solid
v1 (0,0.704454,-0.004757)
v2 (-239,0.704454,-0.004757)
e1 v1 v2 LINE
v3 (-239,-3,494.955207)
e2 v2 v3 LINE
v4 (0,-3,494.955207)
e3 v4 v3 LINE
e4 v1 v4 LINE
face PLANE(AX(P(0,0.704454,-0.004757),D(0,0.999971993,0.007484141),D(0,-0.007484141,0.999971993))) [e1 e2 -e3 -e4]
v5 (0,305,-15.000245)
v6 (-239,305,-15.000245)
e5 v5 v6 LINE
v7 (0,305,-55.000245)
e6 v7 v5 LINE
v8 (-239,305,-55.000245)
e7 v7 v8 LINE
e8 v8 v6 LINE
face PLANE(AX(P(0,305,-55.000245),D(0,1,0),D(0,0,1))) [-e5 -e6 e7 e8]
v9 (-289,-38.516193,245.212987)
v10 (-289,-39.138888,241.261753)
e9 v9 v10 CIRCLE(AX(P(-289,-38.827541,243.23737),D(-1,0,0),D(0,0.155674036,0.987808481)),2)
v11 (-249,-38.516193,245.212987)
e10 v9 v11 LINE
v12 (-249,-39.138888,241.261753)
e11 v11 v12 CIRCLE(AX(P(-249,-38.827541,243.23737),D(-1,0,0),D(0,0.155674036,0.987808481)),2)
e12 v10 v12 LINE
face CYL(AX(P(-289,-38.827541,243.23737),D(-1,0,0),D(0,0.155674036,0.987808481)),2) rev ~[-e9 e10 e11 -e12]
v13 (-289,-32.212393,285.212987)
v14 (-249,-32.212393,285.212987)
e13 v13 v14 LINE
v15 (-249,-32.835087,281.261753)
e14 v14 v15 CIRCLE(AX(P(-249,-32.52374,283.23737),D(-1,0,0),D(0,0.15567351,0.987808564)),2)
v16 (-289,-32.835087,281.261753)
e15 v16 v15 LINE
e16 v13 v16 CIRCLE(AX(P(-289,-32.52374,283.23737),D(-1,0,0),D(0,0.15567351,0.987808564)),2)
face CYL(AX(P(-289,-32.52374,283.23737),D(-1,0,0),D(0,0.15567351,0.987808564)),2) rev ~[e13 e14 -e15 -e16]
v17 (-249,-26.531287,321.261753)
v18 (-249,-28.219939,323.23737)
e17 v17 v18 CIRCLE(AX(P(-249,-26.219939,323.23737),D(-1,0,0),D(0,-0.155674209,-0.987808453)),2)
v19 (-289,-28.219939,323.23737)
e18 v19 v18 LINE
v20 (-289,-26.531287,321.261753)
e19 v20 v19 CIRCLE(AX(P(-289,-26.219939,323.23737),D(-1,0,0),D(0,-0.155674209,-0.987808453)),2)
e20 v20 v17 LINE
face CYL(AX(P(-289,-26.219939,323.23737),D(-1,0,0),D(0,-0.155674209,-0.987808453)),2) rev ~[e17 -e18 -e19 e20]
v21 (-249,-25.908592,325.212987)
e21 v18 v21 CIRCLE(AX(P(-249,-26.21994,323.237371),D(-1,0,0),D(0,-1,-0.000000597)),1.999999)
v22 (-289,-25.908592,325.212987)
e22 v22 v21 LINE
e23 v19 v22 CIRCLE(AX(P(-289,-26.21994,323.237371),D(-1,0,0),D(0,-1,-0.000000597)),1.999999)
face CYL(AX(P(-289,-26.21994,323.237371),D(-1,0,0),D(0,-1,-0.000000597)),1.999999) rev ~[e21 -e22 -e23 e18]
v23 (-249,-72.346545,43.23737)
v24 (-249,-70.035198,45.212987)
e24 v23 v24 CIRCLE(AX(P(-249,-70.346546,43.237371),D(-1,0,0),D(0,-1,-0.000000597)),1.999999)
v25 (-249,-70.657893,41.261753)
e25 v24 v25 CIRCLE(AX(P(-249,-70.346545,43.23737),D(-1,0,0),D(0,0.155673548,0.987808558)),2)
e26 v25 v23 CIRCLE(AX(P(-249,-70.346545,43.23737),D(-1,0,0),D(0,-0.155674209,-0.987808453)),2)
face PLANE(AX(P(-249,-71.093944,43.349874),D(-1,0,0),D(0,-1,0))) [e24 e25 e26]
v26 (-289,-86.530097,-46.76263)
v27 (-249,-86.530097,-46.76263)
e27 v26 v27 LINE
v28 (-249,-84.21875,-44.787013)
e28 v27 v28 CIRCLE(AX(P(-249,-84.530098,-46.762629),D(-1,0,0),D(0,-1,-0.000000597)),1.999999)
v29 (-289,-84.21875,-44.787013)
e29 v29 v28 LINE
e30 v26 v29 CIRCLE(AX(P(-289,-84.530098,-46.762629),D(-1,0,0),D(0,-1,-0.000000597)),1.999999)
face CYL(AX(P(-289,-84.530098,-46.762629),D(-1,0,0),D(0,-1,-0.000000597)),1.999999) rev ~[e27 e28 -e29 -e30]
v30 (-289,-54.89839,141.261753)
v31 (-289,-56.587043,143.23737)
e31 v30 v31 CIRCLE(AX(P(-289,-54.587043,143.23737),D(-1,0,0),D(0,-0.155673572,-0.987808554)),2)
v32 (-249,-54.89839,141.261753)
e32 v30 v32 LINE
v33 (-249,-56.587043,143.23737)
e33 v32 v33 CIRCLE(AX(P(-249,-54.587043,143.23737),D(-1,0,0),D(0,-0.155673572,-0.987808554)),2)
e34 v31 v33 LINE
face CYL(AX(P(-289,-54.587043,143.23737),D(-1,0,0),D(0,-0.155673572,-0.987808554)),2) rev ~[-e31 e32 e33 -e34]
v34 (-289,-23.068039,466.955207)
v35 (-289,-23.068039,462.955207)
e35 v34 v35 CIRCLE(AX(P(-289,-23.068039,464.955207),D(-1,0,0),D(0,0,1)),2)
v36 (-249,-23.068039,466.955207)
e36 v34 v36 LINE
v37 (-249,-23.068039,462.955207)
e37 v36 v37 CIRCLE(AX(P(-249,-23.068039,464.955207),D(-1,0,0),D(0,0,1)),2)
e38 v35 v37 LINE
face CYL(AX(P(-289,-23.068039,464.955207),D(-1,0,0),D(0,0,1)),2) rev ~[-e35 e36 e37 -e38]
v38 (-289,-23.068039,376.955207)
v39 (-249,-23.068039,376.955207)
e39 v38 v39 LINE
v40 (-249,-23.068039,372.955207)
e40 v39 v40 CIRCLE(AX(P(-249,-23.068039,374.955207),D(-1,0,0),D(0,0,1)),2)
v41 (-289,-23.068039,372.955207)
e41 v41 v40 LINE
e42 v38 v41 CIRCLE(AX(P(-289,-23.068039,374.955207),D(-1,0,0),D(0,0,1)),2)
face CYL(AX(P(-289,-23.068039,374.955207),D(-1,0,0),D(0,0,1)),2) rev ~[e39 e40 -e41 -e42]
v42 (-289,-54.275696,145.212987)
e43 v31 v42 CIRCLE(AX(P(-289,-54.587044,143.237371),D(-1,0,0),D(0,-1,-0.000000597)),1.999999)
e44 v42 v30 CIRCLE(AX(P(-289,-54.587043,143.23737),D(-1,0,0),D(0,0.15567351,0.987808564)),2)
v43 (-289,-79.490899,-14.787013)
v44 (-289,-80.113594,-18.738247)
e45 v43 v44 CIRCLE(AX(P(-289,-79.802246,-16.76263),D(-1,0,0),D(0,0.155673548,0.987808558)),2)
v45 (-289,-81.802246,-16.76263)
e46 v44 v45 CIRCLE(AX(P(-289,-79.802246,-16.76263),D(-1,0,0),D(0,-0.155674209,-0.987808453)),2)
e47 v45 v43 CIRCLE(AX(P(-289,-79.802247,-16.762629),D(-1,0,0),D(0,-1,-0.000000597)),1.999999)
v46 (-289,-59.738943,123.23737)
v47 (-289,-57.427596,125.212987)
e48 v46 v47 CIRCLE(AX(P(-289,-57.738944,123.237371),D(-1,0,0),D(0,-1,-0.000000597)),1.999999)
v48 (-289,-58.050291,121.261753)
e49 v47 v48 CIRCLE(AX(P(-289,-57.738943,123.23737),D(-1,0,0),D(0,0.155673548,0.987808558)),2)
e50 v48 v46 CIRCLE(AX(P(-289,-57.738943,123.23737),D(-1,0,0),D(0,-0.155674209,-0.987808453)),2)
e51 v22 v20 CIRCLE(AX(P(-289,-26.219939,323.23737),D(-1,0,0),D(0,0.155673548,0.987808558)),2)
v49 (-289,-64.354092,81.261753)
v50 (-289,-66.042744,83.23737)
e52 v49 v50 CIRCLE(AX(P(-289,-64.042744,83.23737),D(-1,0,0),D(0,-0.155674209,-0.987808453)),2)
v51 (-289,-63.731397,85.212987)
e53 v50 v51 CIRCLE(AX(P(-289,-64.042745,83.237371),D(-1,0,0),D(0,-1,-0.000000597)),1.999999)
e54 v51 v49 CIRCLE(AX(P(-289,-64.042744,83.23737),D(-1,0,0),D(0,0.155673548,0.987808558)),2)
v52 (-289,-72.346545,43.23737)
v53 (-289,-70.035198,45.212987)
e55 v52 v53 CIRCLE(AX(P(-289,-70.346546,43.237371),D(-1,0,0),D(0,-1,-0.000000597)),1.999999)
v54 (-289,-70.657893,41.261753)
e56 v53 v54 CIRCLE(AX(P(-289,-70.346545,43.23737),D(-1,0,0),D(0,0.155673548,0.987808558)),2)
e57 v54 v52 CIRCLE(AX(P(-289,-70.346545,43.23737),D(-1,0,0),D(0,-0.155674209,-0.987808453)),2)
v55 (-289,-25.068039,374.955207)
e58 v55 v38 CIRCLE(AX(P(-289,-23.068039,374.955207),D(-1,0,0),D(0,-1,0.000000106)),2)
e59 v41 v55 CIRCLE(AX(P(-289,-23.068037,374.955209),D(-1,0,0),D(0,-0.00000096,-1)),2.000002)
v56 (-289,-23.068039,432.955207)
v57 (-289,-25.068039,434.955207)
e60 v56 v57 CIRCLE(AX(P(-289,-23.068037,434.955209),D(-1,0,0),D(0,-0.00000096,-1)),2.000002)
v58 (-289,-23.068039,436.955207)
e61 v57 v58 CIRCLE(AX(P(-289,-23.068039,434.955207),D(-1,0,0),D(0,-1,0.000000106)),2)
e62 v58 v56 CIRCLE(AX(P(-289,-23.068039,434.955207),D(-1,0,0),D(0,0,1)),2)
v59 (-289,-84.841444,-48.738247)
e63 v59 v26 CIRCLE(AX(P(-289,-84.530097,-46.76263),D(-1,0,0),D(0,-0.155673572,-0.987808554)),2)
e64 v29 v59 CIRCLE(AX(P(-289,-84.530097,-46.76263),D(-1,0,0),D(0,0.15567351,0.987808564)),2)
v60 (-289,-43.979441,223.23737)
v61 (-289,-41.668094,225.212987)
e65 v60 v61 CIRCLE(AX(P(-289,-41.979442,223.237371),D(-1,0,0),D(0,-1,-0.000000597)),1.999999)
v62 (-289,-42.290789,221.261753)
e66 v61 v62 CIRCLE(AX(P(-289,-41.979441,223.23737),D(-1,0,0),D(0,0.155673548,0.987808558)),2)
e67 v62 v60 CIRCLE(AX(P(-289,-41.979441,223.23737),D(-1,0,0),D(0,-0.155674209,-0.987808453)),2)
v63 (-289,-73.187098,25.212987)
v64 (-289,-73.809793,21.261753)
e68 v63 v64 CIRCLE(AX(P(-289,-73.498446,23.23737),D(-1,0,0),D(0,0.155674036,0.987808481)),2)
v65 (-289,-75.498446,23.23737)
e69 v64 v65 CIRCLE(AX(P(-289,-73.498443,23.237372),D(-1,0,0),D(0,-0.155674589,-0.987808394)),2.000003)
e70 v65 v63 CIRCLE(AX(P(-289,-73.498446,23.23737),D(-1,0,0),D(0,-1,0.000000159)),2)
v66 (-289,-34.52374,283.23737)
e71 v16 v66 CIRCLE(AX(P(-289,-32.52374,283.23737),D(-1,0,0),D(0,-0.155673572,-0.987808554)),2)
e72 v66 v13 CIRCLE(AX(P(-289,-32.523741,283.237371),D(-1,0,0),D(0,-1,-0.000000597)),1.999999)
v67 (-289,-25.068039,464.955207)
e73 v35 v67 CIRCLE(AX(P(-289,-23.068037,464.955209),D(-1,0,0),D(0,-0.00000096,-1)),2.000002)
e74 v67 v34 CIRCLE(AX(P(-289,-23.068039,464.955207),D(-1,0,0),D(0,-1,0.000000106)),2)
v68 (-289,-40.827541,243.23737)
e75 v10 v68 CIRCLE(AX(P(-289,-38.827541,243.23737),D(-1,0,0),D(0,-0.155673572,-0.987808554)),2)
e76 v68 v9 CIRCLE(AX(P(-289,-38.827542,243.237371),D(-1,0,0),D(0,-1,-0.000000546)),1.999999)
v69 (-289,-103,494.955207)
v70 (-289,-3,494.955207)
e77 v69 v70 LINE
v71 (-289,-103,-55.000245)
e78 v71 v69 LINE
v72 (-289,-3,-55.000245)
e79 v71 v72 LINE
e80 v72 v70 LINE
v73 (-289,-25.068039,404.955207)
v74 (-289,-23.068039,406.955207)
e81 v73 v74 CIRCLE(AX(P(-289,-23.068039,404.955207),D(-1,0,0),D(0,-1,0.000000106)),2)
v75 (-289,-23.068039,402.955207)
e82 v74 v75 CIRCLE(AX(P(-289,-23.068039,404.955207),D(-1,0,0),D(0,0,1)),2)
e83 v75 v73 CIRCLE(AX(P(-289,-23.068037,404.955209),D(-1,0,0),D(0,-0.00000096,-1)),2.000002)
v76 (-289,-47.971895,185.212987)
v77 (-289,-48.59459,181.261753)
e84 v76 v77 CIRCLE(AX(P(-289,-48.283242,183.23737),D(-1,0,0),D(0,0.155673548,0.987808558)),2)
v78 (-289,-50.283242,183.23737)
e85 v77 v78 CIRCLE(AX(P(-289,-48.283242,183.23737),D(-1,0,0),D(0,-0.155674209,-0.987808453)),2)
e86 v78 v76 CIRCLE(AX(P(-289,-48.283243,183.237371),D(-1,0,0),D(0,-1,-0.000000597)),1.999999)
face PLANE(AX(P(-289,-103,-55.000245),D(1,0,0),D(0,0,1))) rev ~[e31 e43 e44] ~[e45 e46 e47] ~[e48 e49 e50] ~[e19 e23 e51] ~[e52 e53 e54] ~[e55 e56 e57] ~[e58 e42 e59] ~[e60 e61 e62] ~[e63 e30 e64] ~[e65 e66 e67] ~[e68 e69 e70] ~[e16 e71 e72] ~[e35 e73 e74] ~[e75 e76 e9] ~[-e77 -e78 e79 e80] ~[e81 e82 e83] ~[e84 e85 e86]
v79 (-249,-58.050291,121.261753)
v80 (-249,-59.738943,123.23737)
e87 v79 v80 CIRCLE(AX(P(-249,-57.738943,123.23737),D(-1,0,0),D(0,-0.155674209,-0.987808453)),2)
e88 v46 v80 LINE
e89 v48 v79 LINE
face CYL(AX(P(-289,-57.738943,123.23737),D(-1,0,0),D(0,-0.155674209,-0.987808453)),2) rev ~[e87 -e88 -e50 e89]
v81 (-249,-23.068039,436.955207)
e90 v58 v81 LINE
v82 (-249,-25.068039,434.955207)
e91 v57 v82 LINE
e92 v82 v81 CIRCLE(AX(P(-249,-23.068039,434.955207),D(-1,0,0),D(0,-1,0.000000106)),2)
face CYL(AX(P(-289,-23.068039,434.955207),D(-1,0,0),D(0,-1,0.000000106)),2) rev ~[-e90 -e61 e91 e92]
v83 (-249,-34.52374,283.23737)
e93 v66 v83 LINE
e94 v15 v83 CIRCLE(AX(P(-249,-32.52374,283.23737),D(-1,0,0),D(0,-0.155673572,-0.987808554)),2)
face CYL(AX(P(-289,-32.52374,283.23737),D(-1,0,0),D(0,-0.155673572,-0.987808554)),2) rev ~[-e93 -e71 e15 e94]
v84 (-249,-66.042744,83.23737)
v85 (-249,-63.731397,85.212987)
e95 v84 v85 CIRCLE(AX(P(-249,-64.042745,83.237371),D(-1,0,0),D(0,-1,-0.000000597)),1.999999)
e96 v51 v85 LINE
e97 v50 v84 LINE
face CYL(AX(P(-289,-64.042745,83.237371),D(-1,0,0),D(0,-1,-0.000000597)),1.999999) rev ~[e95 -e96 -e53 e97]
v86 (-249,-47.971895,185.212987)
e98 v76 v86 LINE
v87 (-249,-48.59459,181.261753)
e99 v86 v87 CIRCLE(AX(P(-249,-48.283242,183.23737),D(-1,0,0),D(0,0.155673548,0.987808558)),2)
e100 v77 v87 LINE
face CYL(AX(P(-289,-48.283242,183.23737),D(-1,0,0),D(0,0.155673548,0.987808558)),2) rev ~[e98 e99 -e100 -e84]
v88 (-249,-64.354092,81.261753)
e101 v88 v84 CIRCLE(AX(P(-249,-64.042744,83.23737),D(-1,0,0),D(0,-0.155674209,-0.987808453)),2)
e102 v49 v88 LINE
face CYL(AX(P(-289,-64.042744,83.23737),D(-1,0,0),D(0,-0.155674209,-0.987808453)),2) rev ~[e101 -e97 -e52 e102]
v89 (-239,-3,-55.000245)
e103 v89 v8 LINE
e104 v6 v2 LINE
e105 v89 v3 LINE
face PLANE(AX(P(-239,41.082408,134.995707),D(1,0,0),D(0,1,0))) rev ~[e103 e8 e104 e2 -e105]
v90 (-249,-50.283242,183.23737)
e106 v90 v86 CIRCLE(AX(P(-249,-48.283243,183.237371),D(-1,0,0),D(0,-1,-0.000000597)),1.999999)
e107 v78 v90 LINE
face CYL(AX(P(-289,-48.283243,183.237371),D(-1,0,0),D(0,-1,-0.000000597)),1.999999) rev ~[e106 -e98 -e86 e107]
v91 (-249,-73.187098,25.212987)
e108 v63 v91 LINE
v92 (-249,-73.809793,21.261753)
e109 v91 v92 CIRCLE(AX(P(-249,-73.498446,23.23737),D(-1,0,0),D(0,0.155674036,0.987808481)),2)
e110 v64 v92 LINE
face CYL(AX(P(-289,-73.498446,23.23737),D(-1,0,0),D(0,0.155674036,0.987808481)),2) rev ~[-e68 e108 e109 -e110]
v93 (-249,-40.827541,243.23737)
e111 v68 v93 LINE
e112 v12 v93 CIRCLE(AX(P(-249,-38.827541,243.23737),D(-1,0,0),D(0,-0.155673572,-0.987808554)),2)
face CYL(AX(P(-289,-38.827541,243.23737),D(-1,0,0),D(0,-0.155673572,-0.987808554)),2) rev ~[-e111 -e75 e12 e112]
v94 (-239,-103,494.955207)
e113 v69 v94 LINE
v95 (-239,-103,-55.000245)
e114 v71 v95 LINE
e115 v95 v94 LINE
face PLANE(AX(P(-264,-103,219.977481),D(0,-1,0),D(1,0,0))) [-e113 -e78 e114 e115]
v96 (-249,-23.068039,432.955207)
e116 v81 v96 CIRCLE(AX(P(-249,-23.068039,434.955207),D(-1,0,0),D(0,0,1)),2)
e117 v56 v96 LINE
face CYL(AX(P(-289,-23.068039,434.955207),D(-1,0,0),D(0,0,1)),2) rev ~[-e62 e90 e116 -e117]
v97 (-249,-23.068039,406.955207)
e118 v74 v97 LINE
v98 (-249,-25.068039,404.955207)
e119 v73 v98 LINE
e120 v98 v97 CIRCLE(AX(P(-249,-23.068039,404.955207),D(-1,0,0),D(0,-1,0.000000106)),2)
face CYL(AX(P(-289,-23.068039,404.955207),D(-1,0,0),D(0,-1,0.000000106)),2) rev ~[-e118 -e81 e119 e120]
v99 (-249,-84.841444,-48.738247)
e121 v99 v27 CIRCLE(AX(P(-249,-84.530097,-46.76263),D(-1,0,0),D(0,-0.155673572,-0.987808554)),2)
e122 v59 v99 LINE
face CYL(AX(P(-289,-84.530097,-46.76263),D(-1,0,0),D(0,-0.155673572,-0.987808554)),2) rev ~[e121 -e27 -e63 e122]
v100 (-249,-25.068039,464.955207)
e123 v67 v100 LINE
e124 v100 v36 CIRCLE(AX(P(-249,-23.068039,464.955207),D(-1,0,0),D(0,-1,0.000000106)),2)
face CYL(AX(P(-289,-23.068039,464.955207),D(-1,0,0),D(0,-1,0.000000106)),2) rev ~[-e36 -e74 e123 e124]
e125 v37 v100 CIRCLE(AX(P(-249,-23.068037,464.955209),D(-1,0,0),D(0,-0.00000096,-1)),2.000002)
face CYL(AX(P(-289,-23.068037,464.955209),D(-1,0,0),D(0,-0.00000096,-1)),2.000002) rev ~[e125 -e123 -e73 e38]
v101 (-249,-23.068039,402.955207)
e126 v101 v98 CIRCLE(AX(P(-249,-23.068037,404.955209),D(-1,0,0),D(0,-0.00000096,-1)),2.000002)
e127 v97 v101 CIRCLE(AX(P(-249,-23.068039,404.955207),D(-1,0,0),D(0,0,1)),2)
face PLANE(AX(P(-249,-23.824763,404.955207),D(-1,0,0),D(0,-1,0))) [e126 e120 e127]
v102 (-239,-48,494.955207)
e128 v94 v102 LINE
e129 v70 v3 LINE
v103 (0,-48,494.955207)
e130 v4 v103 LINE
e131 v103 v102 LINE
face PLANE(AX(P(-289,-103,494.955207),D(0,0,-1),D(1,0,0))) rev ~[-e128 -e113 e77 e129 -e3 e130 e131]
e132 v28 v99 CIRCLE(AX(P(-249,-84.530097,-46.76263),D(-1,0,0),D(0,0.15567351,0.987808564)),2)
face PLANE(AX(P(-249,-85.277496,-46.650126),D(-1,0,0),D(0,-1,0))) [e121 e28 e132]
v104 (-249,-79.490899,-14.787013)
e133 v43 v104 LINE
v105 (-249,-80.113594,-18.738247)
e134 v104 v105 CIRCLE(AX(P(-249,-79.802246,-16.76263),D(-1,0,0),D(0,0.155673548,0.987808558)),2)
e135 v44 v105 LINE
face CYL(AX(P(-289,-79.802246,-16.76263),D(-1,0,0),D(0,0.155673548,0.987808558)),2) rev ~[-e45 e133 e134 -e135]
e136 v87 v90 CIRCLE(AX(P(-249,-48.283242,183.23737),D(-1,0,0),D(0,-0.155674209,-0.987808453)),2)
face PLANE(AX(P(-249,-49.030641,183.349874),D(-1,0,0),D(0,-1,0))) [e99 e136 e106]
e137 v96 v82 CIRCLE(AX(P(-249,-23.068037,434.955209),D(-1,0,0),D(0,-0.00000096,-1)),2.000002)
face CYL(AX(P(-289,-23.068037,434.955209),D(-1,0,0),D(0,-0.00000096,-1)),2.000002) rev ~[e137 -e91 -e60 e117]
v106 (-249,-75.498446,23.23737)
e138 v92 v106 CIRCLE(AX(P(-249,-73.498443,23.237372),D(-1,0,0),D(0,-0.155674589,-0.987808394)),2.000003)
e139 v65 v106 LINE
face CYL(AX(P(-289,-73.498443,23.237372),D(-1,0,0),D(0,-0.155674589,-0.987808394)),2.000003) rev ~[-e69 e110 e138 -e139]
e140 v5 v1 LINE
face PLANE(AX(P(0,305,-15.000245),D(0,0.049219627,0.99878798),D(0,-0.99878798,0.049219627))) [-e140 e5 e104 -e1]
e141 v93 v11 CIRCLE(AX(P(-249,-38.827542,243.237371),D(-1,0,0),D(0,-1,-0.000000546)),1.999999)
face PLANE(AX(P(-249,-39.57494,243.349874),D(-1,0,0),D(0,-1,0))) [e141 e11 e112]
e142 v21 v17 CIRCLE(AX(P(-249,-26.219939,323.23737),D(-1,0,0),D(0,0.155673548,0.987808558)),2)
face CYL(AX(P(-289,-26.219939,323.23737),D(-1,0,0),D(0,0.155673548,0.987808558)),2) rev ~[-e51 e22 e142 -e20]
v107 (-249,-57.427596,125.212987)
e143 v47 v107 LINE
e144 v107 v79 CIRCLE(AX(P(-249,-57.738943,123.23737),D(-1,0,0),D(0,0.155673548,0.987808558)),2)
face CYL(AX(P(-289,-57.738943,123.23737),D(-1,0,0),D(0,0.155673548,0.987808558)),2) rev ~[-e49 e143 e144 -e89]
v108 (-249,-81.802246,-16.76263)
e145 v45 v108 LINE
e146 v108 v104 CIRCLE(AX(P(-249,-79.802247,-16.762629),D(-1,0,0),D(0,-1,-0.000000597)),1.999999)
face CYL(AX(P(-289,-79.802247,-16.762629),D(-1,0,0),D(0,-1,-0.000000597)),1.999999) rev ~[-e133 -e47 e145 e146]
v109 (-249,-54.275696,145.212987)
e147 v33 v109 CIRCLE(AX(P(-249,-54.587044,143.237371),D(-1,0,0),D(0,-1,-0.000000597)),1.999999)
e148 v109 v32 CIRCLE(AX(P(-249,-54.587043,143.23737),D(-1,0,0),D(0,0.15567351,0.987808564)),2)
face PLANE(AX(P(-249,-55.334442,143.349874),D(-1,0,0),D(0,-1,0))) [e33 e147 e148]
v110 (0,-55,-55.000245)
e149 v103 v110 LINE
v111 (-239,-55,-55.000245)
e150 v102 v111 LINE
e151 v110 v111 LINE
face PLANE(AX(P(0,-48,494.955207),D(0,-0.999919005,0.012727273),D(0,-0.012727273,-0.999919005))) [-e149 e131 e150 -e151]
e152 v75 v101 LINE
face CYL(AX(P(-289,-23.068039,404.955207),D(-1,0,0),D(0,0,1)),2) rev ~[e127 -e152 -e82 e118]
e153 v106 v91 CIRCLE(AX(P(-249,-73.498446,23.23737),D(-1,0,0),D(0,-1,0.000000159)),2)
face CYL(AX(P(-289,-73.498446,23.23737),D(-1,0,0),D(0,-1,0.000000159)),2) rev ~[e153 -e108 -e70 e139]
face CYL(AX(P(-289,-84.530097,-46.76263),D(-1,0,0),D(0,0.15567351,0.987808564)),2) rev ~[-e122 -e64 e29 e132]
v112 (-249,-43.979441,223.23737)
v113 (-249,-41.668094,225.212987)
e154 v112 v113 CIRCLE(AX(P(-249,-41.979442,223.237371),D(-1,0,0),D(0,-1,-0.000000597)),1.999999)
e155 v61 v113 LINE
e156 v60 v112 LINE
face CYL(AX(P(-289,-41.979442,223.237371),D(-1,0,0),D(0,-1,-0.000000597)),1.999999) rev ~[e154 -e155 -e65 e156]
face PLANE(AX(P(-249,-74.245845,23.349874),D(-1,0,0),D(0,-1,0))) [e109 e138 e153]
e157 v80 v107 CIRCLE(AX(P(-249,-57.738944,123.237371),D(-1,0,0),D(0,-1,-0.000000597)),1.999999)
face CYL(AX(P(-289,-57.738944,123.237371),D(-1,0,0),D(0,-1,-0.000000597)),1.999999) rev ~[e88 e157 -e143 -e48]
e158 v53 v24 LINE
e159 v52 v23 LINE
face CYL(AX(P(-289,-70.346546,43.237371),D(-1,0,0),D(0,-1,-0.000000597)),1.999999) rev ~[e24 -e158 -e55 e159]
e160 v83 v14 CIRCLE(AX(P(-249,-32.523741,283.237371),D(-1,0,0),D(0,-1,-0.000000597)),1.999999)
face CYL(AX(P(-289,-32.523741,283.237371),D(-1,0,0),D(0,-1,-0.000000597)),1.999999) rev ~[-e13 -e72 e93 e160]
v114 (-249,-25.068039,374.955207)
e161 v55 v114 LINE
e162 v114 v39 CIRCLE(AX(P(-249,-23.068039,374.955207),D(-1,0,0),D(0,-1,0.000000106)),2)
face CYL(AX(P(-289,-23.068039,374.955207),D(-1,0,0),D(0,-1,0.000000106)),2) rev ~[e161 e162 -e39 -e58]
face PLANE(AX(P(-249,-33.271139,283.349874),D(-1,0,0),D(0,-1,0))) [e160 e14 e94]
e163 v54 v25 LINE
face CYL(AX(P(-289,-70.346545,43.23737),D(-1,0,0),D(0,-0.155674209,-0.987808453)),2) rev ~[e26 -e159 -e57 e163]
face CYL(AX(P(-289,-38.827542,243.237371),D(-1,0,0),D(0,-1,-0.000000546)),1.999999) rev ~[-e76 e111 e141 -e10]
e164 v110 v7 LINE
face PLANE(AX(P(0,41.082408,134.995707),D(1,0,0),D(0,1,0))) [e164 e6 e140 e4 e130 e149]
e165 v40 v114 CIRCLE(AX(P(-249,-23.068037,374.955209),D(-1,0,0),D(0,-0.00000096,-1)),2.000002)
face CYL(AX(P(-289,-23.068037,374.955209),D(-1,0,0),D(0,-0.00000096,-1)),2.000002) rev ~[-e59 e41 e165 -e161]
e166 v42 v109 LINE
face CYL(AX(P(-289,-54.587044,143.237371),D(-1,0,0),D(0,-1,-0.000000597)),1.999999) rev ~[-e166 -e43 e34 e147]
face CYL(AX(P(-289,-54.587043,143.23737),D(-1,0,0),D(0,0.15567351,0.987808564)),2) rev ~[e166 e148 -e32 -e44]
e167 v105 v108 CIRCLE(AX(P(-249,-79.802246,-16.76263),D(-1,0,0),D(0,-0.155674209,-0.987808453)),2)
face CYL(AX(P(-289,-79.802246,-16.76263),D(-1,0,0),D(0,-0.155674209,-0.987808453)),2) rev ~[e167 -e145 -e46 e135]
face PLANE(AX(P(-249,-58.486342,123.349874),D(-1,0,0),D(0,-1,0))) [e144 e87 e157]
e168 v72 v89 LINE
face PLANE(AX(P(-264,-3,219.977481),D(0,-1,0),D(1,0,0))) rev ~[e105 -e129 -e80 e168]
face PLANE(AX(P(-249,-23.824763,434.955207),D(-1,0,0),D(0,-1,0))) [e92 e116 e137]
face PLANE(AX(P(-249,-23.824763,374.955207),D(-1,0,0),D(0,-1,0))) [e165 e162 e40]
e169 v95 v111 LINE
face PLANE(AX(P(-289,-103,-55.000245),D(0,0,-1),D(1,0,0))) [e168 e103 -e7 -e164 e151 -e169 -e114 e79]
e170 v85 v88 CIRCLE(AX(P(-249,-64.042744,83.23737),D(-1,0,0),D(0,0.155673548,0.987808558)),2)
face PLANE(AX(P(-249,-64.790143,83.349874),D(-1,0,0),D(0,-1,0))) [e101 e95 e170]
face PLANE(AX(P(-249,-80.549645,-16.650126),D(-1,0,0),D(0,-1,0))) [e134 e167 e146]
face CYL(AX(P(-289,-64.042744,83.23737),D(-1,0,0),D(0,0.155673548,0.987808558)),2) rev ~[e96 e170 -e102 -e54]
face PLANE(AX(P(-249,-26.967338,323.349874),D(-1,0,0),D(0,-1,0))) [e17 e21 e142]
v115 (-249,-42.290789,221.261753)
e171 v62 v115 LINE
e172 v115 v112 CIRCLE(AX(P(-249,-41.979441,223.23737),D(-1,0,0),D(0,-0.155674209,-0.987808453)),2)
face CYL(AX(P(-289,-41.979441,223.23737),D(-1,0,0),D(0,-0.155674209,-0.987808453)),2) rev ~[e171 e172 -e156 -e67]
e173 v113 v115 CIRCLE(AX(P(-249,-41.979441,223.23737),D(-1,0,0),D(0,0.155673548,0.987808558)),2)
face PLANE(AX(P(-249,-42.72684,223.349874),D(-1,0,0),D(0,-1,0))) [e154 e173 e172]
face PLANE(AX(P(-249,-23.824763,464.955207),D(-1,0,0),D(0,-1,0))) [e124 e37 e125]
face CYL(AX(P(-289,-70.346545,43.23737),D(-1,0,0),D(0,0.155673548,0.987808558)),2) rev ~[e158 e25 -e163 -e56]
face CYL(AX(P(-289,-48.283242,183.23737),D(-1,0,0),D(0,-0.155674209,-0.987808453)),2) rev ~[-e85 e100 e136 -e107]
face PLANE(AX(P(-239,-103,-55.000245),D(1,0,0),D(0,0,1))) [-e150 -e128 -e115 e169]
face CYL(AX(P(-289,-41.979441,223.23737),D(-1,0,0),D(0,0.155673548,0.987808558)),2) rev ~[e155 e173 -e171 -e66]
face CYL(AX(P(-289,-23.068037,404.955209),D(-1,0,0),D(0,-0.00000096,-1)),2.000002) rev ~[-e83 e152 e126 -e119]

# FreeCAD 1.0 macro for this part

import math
import FreeCAD as App
import Part
import Sketcher

doc = App.newDocument("Part")
params = doc.addObject("Spreadsheet::Sheet", "Params")
for row, (alias, value) in enumerate([
    ("sketch1_width", "45 mm"),
    ("sketch1_width2", "360 mm"),
    ("sketch1_height", "40 mm"),
    ("sketch1_length", "549.999999 mm"),
    ("pad1_length", "239 mm"),
    ("sketch2_width", "50 mm"),
    ("pad2_length", "100 mm"),
    ("sketch3_radius", "2 mm"),
    ("pocket1_length", "40 mm"),
], start=1):
    params.set(f"A{row}", alias)
    params.set(f"B{row}", "=" + value)
    params.setAlias(f"B{row}", alias)

body = doc.addObject("PartDesign::Body", "Body")

# Sketch on YZ plane
sketch1 = body.newObject("Sketcher::SketchObject", "Sketch")
sketch1.AttachmentSupport = (doc.getObject("YZ_Plane"), [""])
sketch1.MapMode = "FlatFace"
sketch1.addGeometry(Part.LineSegment(App.Vector(305, -15, 0), App.Vector(1, 0, 0)), False)
sketch1.addGeometry(Part.LineSegment(App.Vector(1, 0, 0), App.Vector(-3, 495, 0)), False)
sketch1.addGeometry(Part.LineSegment(App.Vector(-3, 495, 0), App.Vector(-48, 495, 0)), False)
sketch1.addGeometry(Part.LineSegment(App.Vector(-48, 495, 0), App.Vector(-55, -55, 0)), False)
sketch1.addGeometry(Part.LineSegment(App.Vector(-55, -55, 0), App.Vector(305, -55, 0)), False)
sketch1.addGeometry(Part.LineSegment(App.Vector(305, -55, 0), App.Vector(305, -15, 0)), False)
sketch1.addConstraint(Sketcher.Constraint("Coincident", 0, 2, 1, 1))
sketch1.addConstraint(Sketcher.Constraint("Coincident", 1, 2, 2, 1))
sketch1.addConstraint(Sketcher.Constraint("Coincident", 2, 2, 3, 1))
sketch1.addConstraint(Sketcher.Constraint("Coincident", 3, 2, 4, 1))
sketch1.addConstraint(Sketcher.Constraint("Coincident", 4, 2, 5, 1))
sketch1.addConstraint(Sketcher.Constraint("Coincident", 5, 2, 0, 1))
sketch1.addConstraint(Sketcher.Constraint("Horizontal", 2))
sketch1.addConstraint(Sketcher.Constraint("Horizontal", 4))
sketch1.addConstraint(Sketcher.Constraint("Vertical", 5))
sketch1.addConstraint(Sketcher.Constraint("DistanceX", 2, 2, 2, 1, 45.0))
sketch1.addConstraint(Sketcher.Constraint("DistanceX", 4, 1, 4, 2, 360.0))
sketch1.addConstraint(Sketcher.Constraint("DistanceY", 5, 1, 5, 2, 40.0))
sketch1.addConstraint(Sketcher.Constraint("Distance", 3, 549.999999))
sketch1.addConstraint(Sketcher.Constraint("DistanceX", 1, 2, -1, 1, 3.0))
sketch1.addConstraint(Sketcher.Constraint("DistanceX", 3, 2, -1, 1, 55.0))
sketch1.addConstraint(Sketcher.Constraint("DistanceY", 3, 2, 0, 2, 54.995488))
sketch1.addConstraint(Sketcher.Constraint("Distance", 0, 304.664806))
sketch1.addConstraint(Sketcher.Constraint("DistanceY", 0, 2, -1, 1, 0.004757))
sketch1.setExpression("Constraints[9]", "Params.sketch1_width")
sketch1.setExpression("Constraints[10]", "Params.sketch1_width2")
sketch1.setExpression("Constraints[11]", "Params.sketch1_height")
sketch1.setExpression("Constraints[12]", "Params.sketch1_length")
pad1 = body.newObject("PartDesign::Pad", "Pad")
pad1.Profile = sketch1
pad1.setExpression("Length", "Params.pad1_length")
pad1.Reversed = True

# Sketch on XZ plane
sketch2 = body.newObject("Sketcher::SketchObject", "Sketch001")
sketch2.AttachmentSupport = (doc.getObject("XZ_Plane"), [""])
sketch2.MapMode = "FlatFace"
sketch2.AttachmentOffset = App.Placement(App.Vector(0, 0, 103), App.Rotation())
sketch2.addGeometry(Part.LineSegment(App.Vector(-289, 495, 0), App.Vector(-289, -55, 0)), False)
sketch2.addGeometry(Part.LineSegment(App.Vector(-289, -55, 0), App.Vector(-239, -55, 0)), False)
sketch2.addGeometry(Part.LineSegment(App.Vector(-239, -55, 0), App.Vector(-239, 495, 0)), False)
sketch2.addGeometry(Part.LineSegment(App.Vector(-239, 495, 0), App.Vector(-289, 495, 0)), False)
sketch2.addConstraint(Sketcher.Constraint("Coincident", 0, 2, 1, 1))
sketch2.addConstraint(Sketcher.Constraint("Coincident", 1, 2, 2, 1))
sketch2.addConstraint(Sketcher.Constraint("Coincident", 2, 2, 3, 1))
sketch2.addConstraint(Sketcher.Constraint("Coincident", 3, 2, 0, 1))
sketch2.addConstraint(Sketcher.Constraint("Vertical", 0))
sketch2.addConstraint(Sketcher.Constraint("Horizontal", 1))
sketch2.addConstraint(Sketcher.Constraint("Vertical", 2))
sketch2.addConstraint(Sketcher.Constraint("Horizontal", 3))
sketch2.addConstraint(Sketcher.Constraint("DistanceX", 1, 1, 1, 2, 50.0))
sketch2.addConstraint(Sketcher.Constraint("DistanceX", 0, 2, -1, 1, 289.0))
sketch2.addConstraint(Sketcher.Constraint("DistanceY", 0, 2, 0, 1, 549.955452))
sketch2.addConstraint(Sketcher.Constraint("DistanceY", 0, 2, -1, 1, 55.000245))
sketch2.setExpression("Constraints[8]", "Params.sketch2_width")
pad2 = body.newObject("PartDesign::Pad", "Pad001")
pad2.Profile = sketch2
pad2.setExpression("Length", "Params.pad2_length")
pad2.Reversed = True

# Sketch on YZ plane
sketch3 = body.newObject("Sketcher::SketchObject", "Sketch002")
sketch3.AttachmentSupport = (doc.getObject("YZ_Plane"), [""])
sketch3.MapMode = "FlatFace"
sketch3.AttachmentOffset = App.Placement(App.Vector(0, 0, -289), App.Rotation())
sketch3.addGeometry(Part.ArcOfCircle(Part.Circle(App.Vector(-23.1, 465, 0), App.Vector(0, 0, 1), 2), math.radians(90), math.radians(180)), False)
sketch3.addGeometry(Part.ArcOfCircle(Part.Circle(App.Vector(-23.1, 465, 0), App.Vector(0, 0, 1), 2), math.radians(-90), math.radians(90)), False)
sketch3.addGeometry(Part.ArcOfCircle(Part.Circle(App.Vector(-23.1, 465, 0), App.Vector(0, 0, 1), 2), math.radians(-180), math.radians(-90)), False)
sketch3.addGeometry(Part.ArcOfCircle(Part.Circle(App.Vector(-84.5, -46.8, 0), App.Vector(0, 0, 1), 2), math.radians(81), math.radians(180)), False)
sketch3.addGeometry(Part.ArcOfCircle(Part.Circle(App.Vector(-84.5, -46.8, 0), App.Vector(0, 0, 1), 2), math.radians(-99), math.radians(81)), False)
sketch3.addGeometry(Part.ArcOfCircle(Part.Circle(App.Vector(-84.5, -46.8, 0), App.Vector(0, 0, 1), 2), math.radians(-180), math.radians(-99)), False)
sketch3.addGeometry(Part.ArcOfCircle(Part.Circle(App.Vector(-79.8, -16.8, 0), App.Vector(0, 0, 1), 2), math.radians(81), math.radians(180)), False)
sketch3.addGeometry(Part.ArcOfCircle(Part.Circle(App.Vector(-79.8, -16.8, 0), App.Vector(0, 0, 1), 2), math.radians(-99), math.radians(81)), False)
sketch3.addGeometry(Part.ArcOfCircle(Part.Circle(App.Vector(-79.8, -16.8, 0), App.Vector(0, 0, 1), 2), math.radians(-180), math.radians(-99)), False)
sketch3.addGeometry(Part.ArcOfCircle(Part.Circle(App.Vector(-73.5, 23.2, 0), App.Vector(0, 0, 1), 2), math.radians(81), math.radians(180)), False)
sketch3.addGeometry(Part.ArcOfCircle(Part.Circle(App.Vector(-73.5, 23.2, 0), App.Vector(0, 0, 1), 2), math.radians(-99), math.radians(81)), False)
sketch3.addGeometry(Part.ArcOfCircle(Part.Circle(App.Vector(-73.5, 23.2, 0), App.Vector(0, 0, 1), 2), math.radians(-180), math.radians(-99)), False)
sketch3.addGeometry(Part.ArcOfCircle(Part.Circle(App.Vector(-70.3, 43.2, 0), App.Vector(0, 0, 1), 2), math.radians(81), math.radians(180)), False)
sketch3.addGeometry(Part.ArcOfCircle(Part.Circle(App.Vector(-70.3, 43.2, 0), App.Vector(0, 0, 1), 2), math.radians(-99), math.radians(81)), False)
sketch3.addGeometry(Part.ArcOfCircle(Part.Circle(App.Vector(-70.3, 43.2, 0), App.Vector(0, 0, 1), 2), math.radians(-180), math.radians(-99)), False)
sketch3.addGeometry(Part.ArcOfCircle(Part.Circle(App.Vector(-64, 83.2, 0), App.Vector(0, 0, 1), 2), math.radians(81), math.radians(180)), False)
sketch3.addGeometry(Part.ArcOfCircle(Part.Circle(App.Vector(-64, 83.2, 0), App.Vector(0, 0, 1), 2), math.radians(-99), math.radians(81)), False)
sketch3.addGeometry(Part.ArcOfCircle(Part.Circle(App.Vector(-64, 83.2, 0), App.Vector(0, 0, 1), 2), math.radians(-180), math.radians(-99)), False)
sketch3.addGeometry(Part.ArcOfCircle(Part.Circle(App.Vector(-57.7, 123.2, 0), App.Vector(0, 0, 1), 2), math.radians(81), math.radians(180)), False)
sketch3.addGeometry(Part.ArcOfCircle(Part.Circle(App.Vector(-57.7, 123.2, 0), App.Vector(0, 0, 1), 2), math.radians(-99), math.radians(81)), False)
sketch3.addGeometry(Part.ArcOfCircle(Part.Circle(App.Vector(-57.7, 123.2, 0), App.Vector(0, 0, 1), 2), math.radians(-180), math.radians(-99)), False)
sketch3.addGeometry(Part.ArcOfCircle(Part.Circle(App.Vector(-54.6, 143.2, 0), App.Vector(0, 0, 1), 2), math.radians(81), math.radians(180)), False)
sketch3.addGeometry(Part.ArcOfCircle(Part.Circle(App.Vector(-54.6, 143.2, 0), App.Vector(0, 0, 1), 2), math.radians(-99), math.radians(81)), False)
sketch3.addGeometry(Part.ArcOfCircle(Part.Circle(App.Vector(-54.6, 143.2, 0), App.Vector(0, 0, 1), 2), math.radians(-180), math.radians(-99)), False)
sketch3.addGeometry(Part.ArcOfCircle(Part.Circle(App.Vector(-48.3, 183.2, 0), App.Vector(0, 0, 1), 2), math.radians(81), math.radians(180)), False)
sketch3.addGeometry(Part.ArcOfCircle(Part.Circle(App.Vector(-48.3, 183.2, 0), App.Vector(0, 0, 1), 2), math.radians(-99), math.radians(81)), False)
sketch3.addGeometry(Part.ArcOfCircle(Part.Circle(App.Vector(-48.3, 183.2, 0), App.Vector(0, 0, 1), 2), math.radians(-180), math.radians(-99)), False)
sketch3.addGeometry(Part.ArcOfCircle(Part.Circle(App.Vector(-42, 223.2, 0), App.Vector(0, 0, 1), 2), math.radians(81), math.radians(180)), False)
sketch3.addGeometry(Part.ArcOfCircle(Part.Circle(App.Vector(-42, 223.2, 0), App.Vector(0, 0, 1), 2), math.radians(-99), math.radians(81)), False)
sketch3.addGeometry(Part.ArcOfCircle(Part.Circle(App.Vector(-42, 223.2, 0), App.Vector(0, 0, 1), 2), math.radians(-180), math.radians(-99)), False)
sketch3.addGeometry(Part.ArcOfCircle(Part.Circle(App.Vector(-38.8, 243.2, 0), App.Vector(0, 0, 1), 2), math.radians(81), math.radians(180)), False)
sketch3.addGeometry(Part.ArcOfCircle(Part.Circle(App.Vector(-38.8, 243.2, 0), App.Vector(0, 0, 1), 2), math.radians(-99), math.radians(81)), False)
sketch3.addGeometry(Part.ArcOfCircle(Part.Circle(App.Vector(-38.8, 243.2, 0), App.Vector(0, 0, 1), 2), math.radians(-180), math.radians(-99)), False)
sketch3.addGeometry(Part.ArcOfCircle(Part.Circle(App.Vector(-32.5, 283.2, 0), App.Vector(0, 0, 1), 2), math.radians(81), math.radians(180)), False)
sketch3.addGeometry(Part.ArcOfCircle(Part.Circle(App.Vector(-32.5, 283.2, 0), App.Vector(0, 0, 1), 2), math.radians(-99), math.radians(81)), False)
sketch3.addGeometry(Part.ArcOfCircle(Part.Circle(App.Vector(-32.5, 283.2, 0), App.Vector(0, 0, 1), 2), math.radians(-180), math.radians(-99)), False)
sketch3.addGeometry(Part.ArcOfCircle(Part.Circle(App.Vector(-26.2, 323.2, 0), App.Vector(0, 0, 1), 2), math.radians(81), math.radians(180)), False)
sketch3.addGeometry(Part.ArcOfCircle(Part.Circle(App.Vector(-26.2, 323.2, 0), App.Vector(0, 0, 1), 2), math.radians(-99), math.radians(81)), False)
sketch3.addGeometry(Part.ArcOfCircle(Part.Circle(App.Vector(-26.2, 323.2, 0), App.Vector(0, 0, 1), 2), math.radians(-180), math.radians(-99)), False)
sketch3.addGeometry(Part.ArcOfCircle(Part.Circle(App.Vector(-23.1, 375, 0), App.Vector(0, 0, 1), 2), math.radians(90), math.radians(180)), False)
sketch3.addGeometry(Part.ArcOfCircle(Part.Circle(App.Vector(-23.1, 375, 0), App.Vector(0, 0, 1), 2), math.radians(-90), math.radians(90)), False)
sketch3.addGeometry(Part.ArcOfCircle(Part.Circle(App.Vector(-23.1, 375, 0), App.Vector(0, 0, 1), 2), math.radians(-180), math.radians(-90)), False)
sketch3.addGeometry(Part.ArcOfCircle(Part.Circle(App.Vector(-23.1, 405, 0), App.Vector(0, 0, 1), 2), math.radians(90), math.radians(180)), False)
sketch3.addGeometry(Part.ArcOfCircle(Part.Circle(App.Vector(-23.1, 405, 0), App.Vector(0, 0, 1), 2), math.radians(-90), math.radians(90)), False)
sketch3.addGeometry(Part.ArcOfCircle(Part.Circle(App.Vector(-23.1, 405, 0), App.Vector(0, 0, 1), 2), math.radians(-180), math.radians(-90)), False)
sketch3.addGeometry(Part.ArcOfCircle(Part.Circle(App.Vector(-23.1, 435, 0), App.Vector(0, 0, 1), 2), math.radians(90), math.radians(180)), False)
sketch3.addGeometry(Part.ArcOfCircle(Part.Circle(App.Vector(-23.1, 435, 0), App.Vector(0, 0, 1), 2), math.radians(-90), math.radians(90)), False)
sketch3.addGeometry(Part.ArcOfCircle(Part.Circle(App.Vector(-23.1, 435, 0), App.Vector(0, 0, 1), 2), math.radians(-180), math.radians(-90)), False)
sketch3.addConstraint(Sketcher.Constraint("Tangent", 0, 1, 1, 2))
sketch3.addConstraint(Sketcher.Constraint("Tangent", 1, 1, 2, 2))
sketch3.addConstraint(Sketcher.Constraint("Tangent", 2, 1, 0, 2))
sketch3.addConstraint(Sketcher.Constraint("Tangent", 3, 1, 4, 2))
sketch3.addConstraint(Sketcher.Constraint("Tangent", 4, 1, 5, 2))
sketch3.addConstraint(Sketcher.Constraint("Tangent", 5, 1, 3, 2))
sketch3.addConstraint(Sketcher.Constraint("Tangent", 6, 1, 7, 2))
sketch3.addConstraint(Sketcher.Constraint("Tangent", 7, 1, 8, 2))
sketch3.addConstraint(Sketcher.Constraint("Tangent", 8, 1, 6, 2))
sketch3.addConstraint(Sketcher.Constraint("Tangent", 9, 1, 10, 2))
sketch3.addConstraint(Sketcher.Constraint("Tangent", 10, 1, 11, 2))
sketch3.addConstraint(Sketcher.Constraint("Tangent", 11, 1, 9, 2))
sketch3.addConstraint(Sketcher.Constraint("Tangent", 12, 1, 13, 2))
sketch3.addConstraint(Sketcher.Constraint("Tangent", 13, 1, 14, 2))
sketch3.addConstraint(Sketcher.Constraint("Tangent", 14, 1, 12, 2))
sketch3.addConstraint(Sketcher.Constraint("Tangent", 15, 1, 16, 2))
sketch3.addConstraint(Sketcher.Constraint("Tangent", 16, 1, 17, 2))
sketch3.addConstraint(Sketcher.Constraint("Tangent", 17, 1, 15, 2))
sketch3.addConstraint(Sketcher.Constraint("Tangent", 18, 1, 19, 2))
sketch3.addConstraint(Sketcher.Constraint("Tangent", 19, 1, 20, 2))
sketch3.addConstraint(Sketcher.Constraint("Tangent", 20, 1, 18, 2))
sketch3.addConstraint(Sketcher.Constraint("Tangent", 21, 1, 22, 2))
sketch3.addConstraint(Sketcher.Constraint("Tangent", 22, 1, 23, 2))
sketch3.addConstraint(Sketcher.Constraint("Tangent", 23, 1, 21, 2))
sketch3.addConstraint(Sketcher.Constraint("Tangent", 24, 1, 25, 2))
sketch3.addConstraint(Sketcher.Constraint("Tangent", 25, 1, 26, 2))
sketch3.addConstraint(Sketcher.Constraint("Tangent", 26, 1, 24, 2))
sketch3.addConstraint(Sketcher.Constraint("Tangent", 27, 1, 28, 2))
sketch3.addConstraint(Sketcher.Constraint("Tangent", 28, 1, 29, 2))
sketch3.addConstraint(Sketcher.Constraint("Tangent", 29, 1, 27, 2))
sketch3.addConstraint(Sketcher.Constraint("Tangent", 30, 1, 31, 2))
sketch3.addConstraint(Sketcher.Constraint("Tangent", 31, 1, 32, 2))
sketch3.addConstraint(Sketcher.Constraint("Tangent", 32, 1, 30, 2))
sketch3.addConstraint(Sketcher.Constraint("Tangent", 33, 1, 34, 2))
sketch3.addConstraint(Sketcher.Constraint("Tangent", 34, 1, 35, 2))
sketch3.addConstraint(Sketcher.Constraint("Tangent", 35, 1, 33, 2))
sketch3.addConstraint(Sketcher.Constraint("Tangent", 36, 1, 37, 2))
sketch3.addConstraint(Sketcher.Constraint("Tangent", 37, 1, 38, 2))
sketch3.addConstraint(Sketcher.Constraint("Tangent", 38, 1, 36, 2))
sketch3.addConstraint(Sketcher.Constraint("Tangent", 39, 1, 40, 2))
sketch3.addConstraint(Sketcher.Constraint("Tangent", 40, 1, 41, 2))
sketch3.addConstraint(Sketcher.Constraint("Tangent", 41, 1, 39, 2))
sketch3.addConstraint(Sketcher.Constraint("Tangent", 42, 1, 43, 2))
sketch3.addConstraint(Sketcher.Constraint("Tangent", 43, 1, 44, 2))
sketch3.addConstraint(Sketcher.Constraint("Tangent", 44, 1, 42, 2))
sketch3.addConstraint(Sketcher.Constraint("Tangent", 45, 1, 46, 2))
sketch3.addConstraint(Sketcher.Constraint("Tangent", 46, 1, 47, 2))
sketch3.addConstraint(Sketcher.Constraint("Tangent", 47, 1, 45, 2))
sketch3.addConstraint(Sketcher.Constraint("Equal", 1, 3))
sketch3.addConstraint(Sketcher.Constraint("Equal", 5, 6))
sketch3.addConstraint(Sketcher.Constraint("Equal", 8, 9))
sketch3.addConstraint(Sketcher.Constraint("Equal", 10, 12))
sketch3.addConstraint(Sketcher.Constraint("Equal", 14, 15))
sketch3.addConstraint(Sketcher.Constraint("Equal", 17, 18))
sketch3.addConstraint(Sketcher.Constraint("Equal", 20, 21))
sketch3.addConstraint(Sketcher.Constraint("Equal", 23, 24))
sketch3.addConstraint(Sketcher.Constraint("Equal", 26, 27))
sketch3.addConstraint(Sketcher.Constraint("Equal", 29, 30))
sketch3.addConstraint(Sketcher.Constraint("Equal", 32, 33))
sketch3.addConstraint(Sketcher.Constraint("Equal", 35, 36))
sketch3.addConstraint(Sketcher.Constraint("Equal", 38, 39))
sketch3.addConstraint(Sketcher.Constraint("Equal", 41, 42))
sketch3.addConstraint(Sketcher.Constraint("Equal", 44, 45))
sketch3.addConstraint(Sketcher.Constraint("Horizontal", 1, 3, 2, 1))
sketch3.addConstraint(Sketcher.Constraint("Horizontal", 4, 3, 5, 1))
sketch3.addConstraint(Sketcher.Constraint("Horizontal", 7, 3, 8, 1))
sketch3.addConstraint(Sketcher.Constraint("Horizontal", 10, 3, 11, 1))
sketch3.addConstraint(Sketcher.Constraint("Horizontal", 13, 3, 14, 1))
sketch3.addConstraint(Sketcher.Constraint("Horizontal", 16, 3, 17, 1))
sketch3.addConstraint(Sketcher.Constraint("Horizontal", 19, 3, 20, 1))
sketch3.addConstraint(Sketcher.Constraint("Horizontal", 22, 3, 23, 1))
sketch3.addConstraint(Sketcher.Constraint("Horizontal", 25, 3, 26, 1))
sketch3.addConstraint(Sketcher.Constraint("Horizontal", 28, 3, 29, 1))
sketch3.addConstraint(Sketcher.Constraint("Horizontal", 31, 3, 32, 1))
sketch3.addConstraint(Sketcher.Constraint("Horizontal", 34, 3, 35, 1))
sketch3.addConstraint(Sketcher.Constraint("Horizontal", 37, 3, 38, 1))
sketch3.addConstraint(Sketcher.Constraint("Horizontal", 40, 3, 41, 1))
sketch3.addConstraint(Sketcher.Constraint("Horizontal", 43, 3, 44, 1))
sketch3.addConstraint(Sketcher.Constraint("Horizontal", 46, 3, 47, 1))
sketch3.addConstraint(Sketcher.Constraint("Vertical", 2, 3, 39, 3))
sketch3.addConstraint(Sketcher.Constraint("Vertical", 41, 3, 42, 3))
sketch3.addConstraint(Sketcher.Constraint("Vertical", 44, 3, 45, 3))
sketch3.addConstraint(Sketcher.Constraint("Vertical", 47, 3, 0, 1))
sketch3.addConstraint(Sketcher.Constraint("Vertical", 0, 1, 1, 1))
sketch3.addConstraint(Sketcher.Constraint("Vertical", 1, 1, 39, 1))
sketch3.addConstraint(Sketcher.Constraint("Vertical", 39, 1, 40, 1))
sketch3.addConstraint(Sketcher.Constraint("Vertical", 40, 1, 42, 1))
sketch3.addConstraint(Sketcher.Constraint("Vertical", 42, 1, 43, 1))
sketch3.addConstraint(Sketcher.Constraint("Vertical", 43, 1, 45, 1))
sketch3.addConstraint(Sketcher.Constraint("Vertical", 45, 1, 46, 1))
sketch3.addConstraint(Sketcher.Constraint("Radius", 0, 2.0))
sketch3.addConstraint(Sketcher.Constraint("DistanceX", 3, 3, -1, 1, 84.530098))
sketch3.addConstraint(Sketcher.Constraint("DistanceX", 6, 1, -1, 1, 79.490899))
sketch3.addConstraint(Sketcher.Constraint("DistanceX", 9, 1, -1, 1, 73.187098))
sketch3.addConstraint(Sketcher.Constraint("DistanceX", 0, 3, -1, 1, 23.068039))
sketch3.addConstraint(Sketcher.Constraint("DistanceY", -1, 1, 2, 3, 464.955209))
sketch3.addConstraint(Sketcher.Constraint("DistanceY", 3, 3, -1, 1, 46.762629))
sketch3.addConstraint(Sketcher.Constraint("DistanceY", 6, 3, -1, 1, 16.762629))
sketch3.addConstraint(Sketcher.Constraint("DistanceY", -1, 1, 9, 3, 23.23737))
sketch3.addConstraint(Sketcher.Constraint("DistanceY", -1, 1, 12, 3, 43.237371))
sketch3.addConstraint(Sketcher.Constraint("DistanceY", -1, 1, 15, 3, 83.237371))
sketch3.addConstraint(Sketcher.Constraint("DistanceY", -1, 1, 18, 3, 123.237371))
sketch3.addConstraint(Sketcher.Constraint("DistanceY", -1, 1, 21, 3, 143.237371))
sketch3.addConstraint(Sketcher.Constraint("DistanceY", -1, 1, 24, 3, 183.237371))
sketch3.addConstraint(Sketcher.Constraint("DistanceX", 26, 3, -1, 1, 48.283242))
sketch3.addConstraint(Sketcher.Constraint("DistanceY", -1, 1, 27, 3, 223.237371))
sketch3.addConstraint(Sketcher.Constraint("DistanceX", 28, 3, -1, 1, 41.979441))
sketch3.addConstraint(Sketcher.Constraint("DistanceX", 30, 3, -1, 1, 38.827542))
sketch3.addConstraint(Sketcher.Constraint("DistanceY", -1, 1, 30, 3, 243.237371))
sketch3.addConstraint(Sketcher.Constraint("DistanceX", 33, 3, -1, 1, 32.523741))
sketch3.addConstraint(Sketcher.Constraint("DistanceY", -1, 1, 33, 3, 283.237371))
sketch3.addConstraint(Sketcher.Constraint("DistanceX", 36, 3, -1, 1, 26.21994))
sketch3.addConstraint(Sketcher.Constraint("DistanceY", -1, 1, 36, 3, 323.237371))
sketch3.addConstraint(Sketcher.Constraint("DistanceY", -1, 1, 41, 3, 374.955209))
sketch3.addConstraint(Sketcher.Constraint("DistanceY", -1, 1, 44, 3, 404.955209))
sketch3.addConstraint(Sketcher.Constraint("DistanceY", -1, 1, 47, 3, 434.955209))
sketch3.addConstraint(Sketcher.Constraint("DistanceX", 3, 1, -1, 1, 84.21875))
sketch3.addConstraint(Sketcher.Constraint("DistanceX", 19, 1, -1, 1, 58.050291))
sketch3.addConstraint(Sketcher.Constraint("DistanceX", 22, 1, -1, 1, 54.89839))
sketch3.addConstraint(Sketcher.Constraint("DistanceX", 25, 1, -1, 1, 48.59459))
sketch3.addConstraint(Sketcher.Constraint("DistanceX", 28, 1, -1, 1, 42.290789))
sketch3.addConstraint(Sketcher.Constraint("DistanceX", 36, 1, -1, 1, 25.908592))
sketch3.addConstraint(Sketcher.Constraint("DistanceX", 6, 3, -1, 1, 79.802247))
sketch3.addConstraint(Sketcher.Constraint("DistanceX", 9, 3, -1, 1, 73.498446))
sketch3.addConstraint(Sketcher.Constraint("DistanceX", 12, 3, -1, 1, 70.346546))
sketch3.addConstraint(Sketcher.Constraint("DistanceX", 15, 3, -1, 1, 64.042745))
sketch3.addConstraint(Sketcher.Constraint("DistanceX", 18, 3, -1, 1, 57.738944))
sketch3.addConstraint(Sketcher.Constraint("DistanceX", 21, 3, -1, 1, 54.587044))
sketch3.addConstraint(Sketcher.Constraint("DistanceX", 4, 1, -1, 1, 84.841444))
sketch3.addConstraint(Sketcher.Constraint("DistanceX", 7, 1, -1, 1, 80.113594))
sketch3.addConstraint(Sketcher.Constraint("DistanceX", 10, 1, -1, 1, 73.809793))
sketch3.addConstraint(Sketcher.Constraint("DistanceX", 12, 1, -1, 1, 70.035198))
sketch3.addConstraint(Sketcher.Constraint("DistanceX", 13, 1, -1, 1, 70.657893))
sketch3.addConstraint(Sketcher.Constraint("DistanceX", 15, 1, -1, 1, 63.731397))
sketch3.addConstraint(Sketcher.Constraint("DistanceX", 16, 1, -1, 1, 64.354092))
sketch3.addConstraint(Sketcher.Constraint("DistanceX", 18, 1, -1, 1, 57.427596))
sketch3.addConstraint(Sketcher.Constraint("DistanceX", 21, 1, -1, 1, 54.275696))
sketch3.addConstraint(Sketcher.Constraint("DistanceX", 24, 1, -1, 1, 47.971895))
sketch3.addConstraint(Sketcher.Constraint("DistanceX", 27, 1, -1, 1, 41.668094))
sketch3.addConstraint(Sketcher.Constraint("DistanceX", 30, 1, -1, 1, 38.516193))
sketch3.addConstraint(Sketcher.Constraint("DistanceX", 31, 1, -1, 1, 39.138888))
sketch3.addConstraint(Sketcher.Constraint("DistanceX", 33, 1, -1, 1, 32.212393))
sketch3.addConstraint(Sketcher.Constraint("DistanceX", 34, 1, -1, 1, 32.835087))
sketch3.addConstraint(Sketcher.Constraint("DistanceX", 37, 1, -1, 1, 26.531287))
sketch3.setExpression("Constraints[90]", "Params.sketch3_radius")
pocket1 = body.newObject("PartDesign::Pocket", "Pocket")
pocket1.Profile = sketch3
pocket1.setExpression("Length", "Params.pocket1_length")
pocket1.Reversed = True

doc.recompute()
